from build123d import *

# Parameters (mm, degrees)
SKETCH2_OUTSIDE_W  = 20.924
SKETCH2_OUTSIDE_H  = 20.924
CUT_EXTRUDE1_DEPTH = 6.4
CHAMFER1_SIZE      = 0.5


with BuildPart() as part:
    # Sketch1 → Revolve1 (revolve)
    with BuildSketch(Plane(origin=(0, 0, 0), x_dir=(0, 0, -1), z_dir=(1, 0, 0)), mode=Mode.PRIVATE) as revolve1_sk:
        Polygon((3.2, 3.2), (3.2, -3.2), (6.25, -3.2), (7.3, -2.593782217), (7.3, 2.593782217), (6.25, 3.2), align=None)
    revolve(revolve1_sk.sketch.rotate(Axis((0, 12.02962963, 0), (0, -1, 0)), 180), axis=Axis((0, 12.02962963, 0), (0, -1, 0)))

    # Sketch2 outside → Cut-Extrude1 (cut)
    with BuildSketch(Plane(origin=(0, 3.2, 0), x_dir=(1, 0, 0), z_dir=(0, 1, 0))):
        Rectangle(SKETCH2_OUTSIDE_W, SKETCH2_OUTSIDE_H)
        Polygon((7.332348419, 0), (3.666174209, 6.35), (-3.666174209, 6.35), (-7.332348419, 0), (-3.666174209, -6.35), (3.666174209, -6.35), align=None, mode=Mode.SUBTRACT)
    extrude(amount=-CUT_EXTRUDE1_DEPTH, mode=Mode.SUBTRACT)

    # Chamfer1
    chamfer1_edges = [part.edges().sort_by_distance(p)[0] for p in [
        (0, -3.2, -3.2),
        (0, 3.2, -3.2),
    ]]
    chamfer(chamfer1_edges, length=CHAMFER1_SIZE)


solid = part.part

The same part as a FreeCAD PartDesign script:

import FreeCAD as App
import Part
import Sketcher
from FreeCAD import Vector
Q = App.Units.Quantity


def edges_at(feature, points):
    """Names of the edges that pass closest to the given points."""
    edges = feature.Shape.Edges
    near = lambda p: min(range(len(edges)), key=lambda i: edges[i].distToShape(Part.Vertex(*p))[0])
    return sorted({f"Edge{near(p) + 1}" for p in points})


def add_polygon(sketch, points):
    """Adds a closed chain of lines whose ends are joined by coincident constraints."""
    first, n = sketch.GeometryCount, len(points)
    for a, b in zip(points, points[1:] + points[:1]):
        sketch.addGeometry(Part.LineSegment(App.Vector(*a, 0), App.Vector(*b, 0)), False)
    for i in range(n):
        sketch.addConstraint(Sketcher.Constraint("Coincident", first + i, 2, first + (i + 1) % n, 1))

doc = App.newDocument("Part")
body = doc.addObject("PartDesign::Body", "Body")

# Sketch on YZ plane
sketch1 = doc.addObject("Sketcher::SketchObject", "Sketch")
body.addObject(sketch1)
sketch1.AttachmentSupport = (doc.YZ_Plane, [""])
sketch1.MapMode = "FlatFace"
add_polygon(sketch1, [(3.2, -3.2), (-3.2, -3.2), (-3.2, -6.2), (-2.6, -7.3), (2.6, -7.3), (3.2, -6.2)])  # lines 0-5
sketch1.addConstraint(Sketcher.Constraint("Horizontal", 0))
sketch1.addConstraint(Sketcher.Constraint("Vertical", 1))
sketch1.addConstraint(Sketcher.Constraint("Horizontal", 3))
sketch1.addConstraint(Sketcher.Constraint("Vertical", 5))
sketch1.addConstraint(Sketcher.Constraint("Symmetric", 1, 2, 4, 2, -2))
sketch1.addConstraint(Sketcher.Constraint("Equal", 2, 4))
sketch1.addConstraint(Sketcher.Constraint("Angle", 2, Q("-60 deg")))
sketch1.addConstraint(Sketcher.Constraint("DistanceX", 0, 2, 0, 1, 6.4))
sketch1.addConstraint(Sketcher.Constraint("DistanceY", 1, 2, 1, 1, 3.05))
sketch1.addConstraint(Sketcher.Constraint("DistanceY", 0, 2, -1, 1, 3.2))
sketch1.addConstraint(Sketcher.Constraint("DistanceY", 2, 2, -1, 1, 7.3))
revolution = doc.addObject("PartDesign::Revolution", "Revolution")
body.addObject(revolution)
revolution.Profile = sketch1
revolution.ReferenceAxis = (sketch1, ["H_Axis"])
revolution.Angle = 360

# Sketch on XZ plane
sketch2 = doc.addObject("Sketcher::SketchObject", "Sketch001")
body.addObject(sketch2)
sketch2.AttachmentSupport = (doc.XZ_Plane, [""])
sketch2.MapMode = "FlatFace"
sketch2.AttachmentOffset = App.Placement(Vector(0, 0, -3.2), App.Rotation())
add_polygon(sketch2, [(-10, -10), (-10, 10), (10, 10), (10, -10)])  # lines 0-3
add_polygon(sketch2, [(4, -6), (7, 0), (4, 6), (-4, 6), (-7, 0), (-4, -6)])  # lines 4-9
sketch2.addConstraint(Sketcher.Constraint("Vertical", 0))
sketch2.addConstraint(Sketcher.Constraint("Horizontal", 1))
sketch2.addConstraint(Sketcher.Constraint("Vertical", 2))
sketch2.addConstraint(Sketcher.Constraint("Horizontal", 3))
sketch2.addConstraint(Sketcher.Constraint("Horizontal", 6))
sketch2.addConstraint(Sketcher.Constraint("Horizontal", 9))
sketch2.addConstraint(Sketcher.Constraint("Symmetric", 0, 2, 2, 2, -1, 1))
sketch2.addConstraint(Sketcher.Constraint("Symmetric", 4, 2, 7, 2, -1, 1))
sketch2.addConstraint(Sketcher.Constraint("Symmetric", 5, 2, 8, 2, -1, 1))
sketch2.addConstraint(Sketcher.Constraint("PointOnObject", 4, 2, -1))
sketch2.addConstraint(Sketcher.Constraint("Parallel", 4, 7))
sketch2.addConstraint(Sketcher.Constraint("Vertical", 6, 2, 8, 2))
sketch2.addConstraint(Sketcher.Constraint("Equal", 3, 0))
sketch2.addConstraint(Sketcher.Constraint("Angle", 4, Q("60 deg")))
sketch2.addConstraint(Sketcher.Constraint("DistanceY", 8, 2, 6, 2, 12.7))
sketch2.addConstraint(Sketcher.Constraint("DistanceX", 1, 1, 1, 2, 20.924))
sketch2.addConstraint(Sketcher.Constraint("DistanceX", 6, 2, 6, 1, 7.332348))
pocket1 = doc.addObject("PartDesign::Pocket", "Pocket")
body.addObject(pocket1)
pocket1.Profile = sketch2
pocket1.Length = 6.4
pocket1.Reversed = True
doc.recompute()

chamfer = doc.addObject("PartDesign::Chamfer", "Chamfer")
body.addObject(chamfer)
chamfer.Base = (pocket1, edges_at(pocket1, [(0, -3.2, -3.2), (0, 3.2, -3.2)]))
chamfer.Size = 0.5

doc.recompute()
